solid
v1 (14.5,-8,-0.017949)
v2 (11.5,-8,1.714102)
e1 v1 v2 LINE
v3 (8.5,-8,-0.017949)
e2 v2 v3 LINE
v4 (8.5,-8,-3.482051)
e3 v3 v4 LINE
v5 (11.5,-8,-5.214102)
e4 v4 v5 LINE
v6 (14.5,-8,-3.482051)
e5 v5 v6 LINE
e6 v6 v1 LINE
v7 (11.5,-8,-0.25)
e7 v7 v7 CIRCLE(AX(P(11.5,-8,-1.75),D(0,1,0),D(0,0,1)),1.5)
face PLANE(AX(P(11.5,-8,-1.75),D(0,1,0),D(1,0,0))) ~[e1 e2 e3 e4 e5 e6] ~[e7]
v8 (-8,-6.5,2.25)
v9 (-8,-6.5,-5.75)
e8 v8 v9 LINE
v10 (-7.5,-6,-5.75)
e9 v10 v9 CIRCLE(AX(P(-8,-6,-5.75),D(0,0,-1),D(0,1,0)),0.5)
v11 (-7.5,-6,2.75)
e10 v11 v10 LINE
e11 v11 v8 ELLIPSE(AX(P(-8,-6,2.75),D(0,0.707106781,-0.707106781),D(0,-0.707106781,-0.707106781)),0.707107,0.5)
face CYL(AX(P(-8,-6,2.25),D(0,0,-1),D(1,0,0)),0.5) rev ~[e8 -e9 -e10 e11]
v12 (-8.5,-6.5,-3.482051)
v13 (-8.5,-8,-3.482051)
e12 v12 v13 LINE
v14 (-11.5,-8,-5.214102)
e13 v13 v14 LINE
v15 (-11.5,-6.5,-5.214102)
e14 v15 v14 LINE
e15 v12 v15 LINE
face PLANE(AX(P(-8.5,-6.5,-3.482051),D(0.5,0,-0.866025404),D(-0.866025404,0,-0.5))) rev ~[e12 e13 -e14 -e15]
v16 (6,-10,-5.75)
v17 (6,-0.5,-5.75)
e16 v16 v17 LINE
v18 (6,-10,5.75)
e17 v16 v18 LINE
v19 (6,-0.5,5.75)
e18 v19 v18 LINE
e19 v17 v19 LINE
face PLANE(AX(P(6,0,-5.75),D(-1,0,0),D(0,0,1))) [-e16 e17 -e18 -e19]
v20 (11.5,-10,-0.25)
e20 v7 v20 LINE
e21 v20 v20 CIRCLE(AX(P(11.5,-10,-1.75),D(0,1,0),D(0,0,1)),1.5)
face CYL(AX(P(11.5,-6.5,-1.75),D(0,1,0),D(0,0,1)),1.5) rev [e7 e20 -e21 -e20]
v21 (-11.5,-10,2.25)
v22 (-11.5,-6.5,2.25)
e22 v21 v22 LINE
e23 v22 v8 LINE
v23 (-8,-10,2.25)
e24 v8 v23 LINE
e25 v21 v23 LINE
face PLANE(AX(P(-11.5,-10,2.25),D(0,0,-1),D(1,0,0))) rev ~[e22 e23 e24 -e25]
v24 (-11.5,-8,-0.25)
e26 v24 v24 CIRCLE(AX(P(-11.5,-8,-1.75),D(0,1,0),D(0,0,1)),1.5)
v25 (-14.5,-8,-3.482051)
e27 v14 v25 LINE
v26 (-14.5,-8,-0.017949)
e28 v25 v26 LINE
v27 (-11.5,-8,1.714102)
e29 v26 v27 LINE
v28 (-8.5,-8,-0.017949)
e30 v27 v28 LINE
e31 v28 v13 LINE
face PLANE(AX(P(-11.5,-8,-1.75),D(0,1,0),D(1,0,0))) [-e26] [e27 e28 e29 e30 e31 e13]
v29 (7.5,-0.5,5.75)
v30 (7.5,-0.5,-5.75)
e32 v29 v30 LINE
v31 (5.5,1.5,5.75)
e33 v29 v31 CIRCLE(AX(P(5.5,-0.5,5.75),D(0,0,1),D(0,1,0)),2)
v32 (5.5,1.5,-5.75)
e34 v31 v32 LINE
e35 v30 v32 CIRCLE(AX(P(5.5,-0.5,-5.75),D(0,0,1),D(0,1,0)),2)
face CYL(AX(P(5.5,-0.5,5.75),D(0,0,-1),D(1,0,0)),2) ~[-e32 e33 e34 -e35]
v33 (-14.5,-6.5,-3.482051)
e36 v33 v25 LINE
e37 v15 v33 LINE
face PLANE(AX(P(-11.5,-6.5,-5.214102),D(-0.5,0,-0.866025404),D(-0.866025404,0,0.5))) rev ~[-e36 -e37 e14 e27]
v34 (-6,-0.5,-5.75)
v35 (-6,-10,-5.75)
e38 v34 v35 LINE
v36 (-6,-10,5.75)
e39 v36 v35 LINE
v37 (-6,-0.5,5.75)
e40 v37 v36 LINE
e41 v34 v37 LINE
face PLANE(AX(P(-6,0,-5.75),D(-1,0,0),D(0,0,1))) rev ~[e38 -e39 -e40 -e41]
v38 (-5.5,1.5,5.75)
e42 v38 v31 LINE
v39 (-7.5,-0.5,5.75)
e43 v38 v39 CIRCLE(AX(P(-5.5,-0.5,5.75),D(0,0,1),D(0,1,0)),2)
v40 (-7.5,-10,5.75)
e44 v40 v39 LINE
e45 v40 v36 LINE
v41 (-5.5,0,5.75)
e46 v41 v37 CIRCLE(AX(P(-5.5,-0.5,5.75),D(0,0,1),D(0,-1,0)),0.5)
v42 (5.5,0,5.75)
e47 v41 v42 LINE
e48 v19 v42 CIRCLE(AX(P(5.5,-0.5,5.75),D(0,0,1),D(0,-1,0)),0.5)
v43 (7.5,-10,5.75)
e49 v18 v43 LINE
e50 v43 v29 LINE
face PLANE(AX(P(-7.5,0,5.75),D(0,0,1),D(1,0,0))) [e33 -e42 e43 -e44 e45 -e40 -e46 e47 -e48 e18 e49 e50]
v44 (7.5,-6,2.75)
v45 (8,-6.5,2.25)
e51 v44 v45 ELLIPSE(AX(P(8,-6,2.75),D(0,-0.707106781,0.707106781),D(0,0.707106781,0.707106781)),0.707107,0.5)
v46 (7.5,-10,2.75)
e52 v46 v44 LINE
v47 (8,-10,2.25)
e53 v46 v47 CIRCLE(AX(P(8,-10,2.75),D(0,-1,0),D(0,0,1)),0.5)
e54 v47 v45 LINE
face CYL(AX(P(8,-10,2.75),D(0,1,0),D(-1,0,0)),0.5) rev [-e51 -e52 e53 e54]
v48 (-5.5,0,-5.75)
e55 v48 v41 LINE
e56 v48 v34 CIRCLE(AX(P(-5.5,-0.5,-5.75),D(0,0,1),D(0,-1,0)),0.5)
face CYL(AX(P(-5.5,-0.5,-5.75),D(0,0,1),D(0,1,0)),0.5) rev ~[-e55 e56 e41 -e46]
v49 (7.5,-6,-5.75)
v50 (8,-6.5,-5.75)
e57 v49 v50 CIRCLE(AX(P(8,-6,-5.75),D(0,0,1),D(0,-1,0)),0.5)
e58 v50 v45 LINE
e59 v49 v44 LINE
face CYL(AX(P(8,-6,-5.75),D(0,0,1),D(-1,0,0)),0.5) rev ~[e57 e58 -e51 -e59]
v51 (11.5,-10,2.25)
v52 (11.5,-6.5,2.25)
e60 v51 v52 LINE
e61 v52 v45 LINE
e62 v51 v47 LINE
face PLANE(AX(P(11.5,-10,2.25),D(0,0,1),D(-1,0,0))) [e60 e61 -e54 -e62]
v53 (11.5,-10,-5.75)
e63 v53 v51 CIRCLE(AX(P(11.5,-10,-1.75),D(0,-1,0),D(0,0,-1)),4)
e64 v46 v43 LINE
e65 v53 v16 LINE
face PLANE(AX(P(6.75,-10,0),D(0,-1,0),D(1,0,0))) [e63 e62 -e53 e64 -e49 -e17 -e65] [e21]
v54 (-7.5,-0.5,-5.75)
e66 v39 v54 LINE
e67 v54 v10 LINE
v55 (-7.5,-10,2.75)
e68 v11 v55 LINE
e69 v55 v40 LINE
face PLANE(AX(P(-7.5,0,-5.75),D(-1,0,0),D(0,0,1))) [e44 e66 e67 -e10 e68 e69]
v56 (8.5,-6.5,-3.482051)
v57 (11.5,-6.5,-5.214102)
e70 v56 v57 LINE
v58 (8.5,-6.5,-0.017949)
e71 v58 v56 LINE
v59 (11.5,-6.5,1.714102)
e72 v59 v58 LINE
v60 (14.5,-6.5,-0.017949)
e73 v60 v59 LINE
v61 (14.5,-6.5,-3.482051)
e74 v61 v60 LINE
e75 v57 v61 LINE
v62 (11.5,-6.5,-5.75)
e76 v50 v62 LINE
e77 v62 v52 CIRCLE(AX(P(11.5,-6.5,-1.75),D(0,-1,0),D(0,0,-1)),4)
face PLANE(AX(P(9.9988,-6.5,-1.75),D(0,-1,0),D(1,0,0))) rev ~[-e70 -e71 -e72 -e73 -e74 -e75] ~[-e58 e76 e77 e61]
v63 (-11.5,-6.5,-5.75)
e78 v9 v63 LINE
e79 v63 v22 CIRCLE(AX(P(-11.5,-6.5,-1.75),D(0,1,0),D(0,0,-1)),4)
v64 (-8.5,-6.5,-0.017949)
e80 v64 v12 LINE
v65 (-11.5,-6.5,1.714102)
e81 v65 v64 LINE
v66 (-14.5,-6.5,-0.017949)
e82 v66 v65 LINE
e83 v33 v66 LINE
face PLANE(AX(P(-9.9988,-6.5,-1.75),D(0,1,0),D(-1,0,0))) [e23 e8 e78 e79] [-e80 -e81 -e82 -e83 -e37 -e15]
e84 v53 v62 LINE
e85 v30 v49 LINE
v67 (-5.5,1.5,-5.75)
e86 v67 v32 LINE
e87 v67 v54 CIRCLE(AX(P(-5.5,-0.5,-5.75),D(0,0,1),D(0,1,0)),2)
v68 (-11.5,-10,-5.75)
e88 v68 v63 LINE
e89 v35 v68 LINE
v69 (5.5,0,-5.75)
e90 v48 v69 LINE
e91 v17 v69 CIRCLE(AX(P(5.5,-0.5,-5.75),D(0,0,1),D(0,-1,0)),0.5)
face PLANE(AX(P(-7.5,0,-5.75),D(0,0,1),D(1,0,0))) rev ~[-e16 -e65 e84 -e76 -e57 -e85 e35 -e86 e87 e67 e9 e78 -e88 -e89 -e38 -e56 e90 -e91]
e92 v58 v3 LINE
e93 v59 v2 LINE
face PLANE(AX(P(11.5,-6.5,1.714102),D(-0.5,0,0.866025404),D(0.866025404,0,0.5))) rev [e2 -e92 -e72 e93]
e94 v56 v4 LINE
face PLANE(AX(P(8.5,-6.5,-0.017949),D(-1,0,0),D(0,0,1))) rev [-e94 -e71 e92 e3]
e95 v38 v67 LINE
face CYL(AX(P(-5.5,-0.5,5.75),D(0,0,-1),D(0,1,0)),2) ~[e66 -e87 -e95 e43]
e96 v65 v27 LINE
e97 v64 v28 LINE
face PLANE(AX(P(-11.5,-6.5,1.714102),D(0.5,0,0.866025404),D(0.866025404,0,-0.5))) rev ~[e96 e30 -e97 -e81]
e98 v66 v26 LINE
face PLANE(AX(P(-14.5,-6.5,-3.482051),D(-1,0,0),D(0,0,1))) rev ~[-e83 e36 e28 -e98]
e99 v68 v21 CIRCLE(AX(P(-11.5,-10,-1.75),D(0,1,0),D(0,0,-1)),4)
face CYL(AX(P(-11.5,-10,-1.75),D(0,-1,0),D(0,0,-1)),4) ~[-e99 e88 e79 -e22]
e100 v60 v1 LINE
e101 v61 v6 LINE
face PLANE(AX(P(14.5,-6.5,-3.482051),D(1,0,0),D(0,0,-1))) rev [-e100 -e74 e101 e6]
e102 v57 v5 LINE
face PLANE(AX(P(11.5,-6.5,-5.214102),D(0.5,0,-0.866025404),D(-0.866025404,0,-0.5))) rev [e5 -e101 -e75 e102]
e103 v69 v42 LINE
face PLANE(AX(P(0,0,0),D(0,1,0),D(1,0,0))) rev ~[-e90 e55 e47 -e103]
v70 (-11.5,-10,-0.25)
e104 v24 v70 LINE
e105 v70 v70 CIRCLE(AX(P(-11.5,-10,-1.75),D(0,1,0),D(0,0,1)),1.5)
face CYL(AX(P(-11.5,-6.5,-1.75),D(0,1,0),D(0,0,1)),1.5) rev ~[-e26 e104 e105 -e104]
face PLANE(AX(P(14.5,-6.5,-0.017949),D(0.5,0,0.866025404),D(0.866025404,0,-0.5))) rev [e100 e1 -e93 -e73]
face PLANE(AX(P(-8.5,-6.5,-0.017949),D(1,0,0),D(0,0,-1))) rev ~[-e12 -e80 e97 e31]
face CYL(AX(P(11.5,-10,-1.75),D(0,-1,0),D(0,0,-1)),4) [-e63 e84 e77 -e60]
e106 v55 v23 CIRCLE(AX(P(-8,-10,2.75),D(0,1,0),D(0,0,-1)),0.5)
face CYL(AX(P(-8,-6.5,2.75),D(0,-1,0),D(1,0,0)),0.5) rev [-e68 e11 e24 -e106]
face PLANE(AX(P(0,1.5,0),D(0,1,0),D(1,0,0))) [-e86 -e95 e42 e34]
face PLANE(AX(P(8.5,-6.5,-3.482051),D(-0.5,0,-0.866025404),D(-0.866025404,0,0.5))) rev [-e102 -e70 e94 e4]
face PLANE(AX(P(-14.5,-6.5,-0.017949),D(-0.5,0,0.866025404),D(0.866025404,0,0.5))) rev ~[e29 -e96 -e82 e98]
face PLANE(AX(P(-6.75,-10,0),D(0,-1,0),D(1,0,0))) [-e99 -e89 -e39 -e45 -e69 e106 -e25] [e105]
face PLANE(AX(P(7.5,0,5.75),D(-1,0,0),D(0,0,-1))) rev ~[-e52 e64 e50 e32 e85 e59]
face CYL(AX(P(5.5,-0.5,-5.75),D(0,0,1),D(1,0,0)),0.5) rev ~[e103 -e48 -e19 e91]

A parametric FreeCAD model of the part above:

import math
import FreeCAD as App
import Part
import Sketcher

V = App.Vector
Q = App.Units.Quantity


def edges_at(feature, points):
    """Names of the edges that pass closest to the given points."""
    edges = feature.Shape.Edges
    near = lambda p: min(range(len(edges)), key=lambda i: edges[i].distToShape(Part.Vertex(*p))[0])
    return sorted({f"Edge{near(p) + 1}" for p in points})

doc = App.newDocument("Part")
body = doc.addObject("PartDesign::Body", "Body")

sketch1 = doc.addObject("Sketcher::SketchObject", "Sketch")
body.addObject(sketch1)
sketch1.AttachmentSupport = (doc.XZ_Plane, [""])
sketch1.MapMode = "FlatFace"
sketch1.addGeometry([
    Part.LineSegment(V(-7.5, -5.75, 0), V(-7.5, 5.75, 0)),
    Part.LineSegment(V(-7.5, 5.75, 0), V(7.5, 5.75, 0)),
    Part.LineSegment(V(7.5, 5.75, 0), V(7.5, -5.75, 0)),
    Part.LineSegment(V(7.5, -5.75, 0), V(-7.5, -5.75, 0)),
], False)
sketch1.addConstraint([
    Sketcher.Constraint("Coincident", 0, 2, 1, 1),
    Sketcher.Constraint("Coincident", 1, 2, 2, 1),
    Sketcher.Constraint("Coincident", 2, 2, 3, 1),
    Sketcher.Constraint("Coincident", 3, 2, 0, 1),
    Sketcher.Constraint("Vertical", 0),
    Sketcher.Constraint("Horizontal", 1),
    Sketcher.Constraint("Vertical", 2),
    Sketcher.Constraint("Horizontal", 3),
    Sketcher.Constraint("Symmetric", 0, 2, 2, 2, -1, 1),
    Sketcher.Constraint("DistanceX", 1, 1, 1, 2, Q("15 mm")),
    Sketcher.Constraint("DistanceY", 0, 1, 0, 2, Q("11.5 mm")),
])
pad1 = doc.addObject("PartDesign::Pad", "Pad")
body.addObject(pad1)
pad1.Profile = sketch1
pad1.Length = 1.5
pad1.Reversed = True

sketch2 = doc.addObject("Sketcher::SketchObject", "Sketch001")
body.addObject(sketch2)
sketch2.AttachmentSupport = (doc.XZ_Plane, [""])
sketch2.MapMode = "FlatFace"
sketch2.addGeometry([
    Part.LineSegment(V(-7.5, 5.75, 0), V(-7.5, -5.75, 0)),
    Part.LineSegment(V(-7.5, -5.75, 0), V(-6, -5.75, 0)),
    Part.LineSegment(V(-6, -5.75, 0), V(-6, 5.75, 0)),
    Part.LineSegment(V(-6, 5.75, 0), V(-7.5, 5.75, 0)),
    Part.LineSegment(V(6, 5.75, 0), V(6, -5.75, 0)),
    Part.LineSegment(V(6, -5.75, 0), V(7.5, -5.75, 0)),
    Part.LineSegment(V(7.5, -5.75, 0), V(7.5, 5.75, 0)),
    Part.LineSegment(V(7.5, 5.75, 0), V(6, 5.75, 0)),
], False)
sketch2.addConstraint([
    Sketcher.Constraint("Coincident", 0, 2, 1, 1),
    Sketcher.Constraint("Coincident", 1, 2, 2, 1),
    Sketcher.Constraint("Coincident", 2, 2, 3, 1),
    Sketcher.Constraint("Coincident", 3, 2, 0, 1),
    Sketcher.Constraint("Coincident", 4, 2, 5, 1),
    Sketcher.Constraint("Coincident", 5, 2, 6, 1),
    Sketcher.Constraint("Coincident", 6, 2, 7, 1),
    Sketcher.Constraint("Coincident", 7, 2, 4, 1),
    Sketcher.Constraint("Vertical", 0),
    Sketcher.Constraint("Horizontal", 1),
    Sketcher.Constraint("Vertical", 2),
    Sketcher.Constraint("Horizontal", 3),
    Sketcher.Constraint("Vertical", 4),
    Sketcher.Constraint("Horizontal", 5),
    Sketcher.Constraint("Vertical", 6),
    Sketcher.Constraint("Horizontal", 7),
    Sketcher.Constraint("Symmetric", 2, 2, 4, 2, -1, 1),
    Sketcher.Constraint("Symmetric", 0, 2, 6, 2, -1, 1),
    Sketcher.Constraint("Horizontal", 1, 2, 4, 2),
    Sketcher.Constraint("DistanceX", 1, 1, 1, 2, Q("1.5 mm")),
    Sketcher.Constraint("DistanceY", 0, 2, 0, 1, Q("11.5 mm")),
    Sketcher.Constraint("DistanceX", 1, 2, -1, 1, Q("6 mm")),
])
pad2 = doc.addObject("PartDesign::Pad", "Pad001")
body.addObject(pad2)
pad2.Profile = sketch2
pad2.Length = 10

sketch3 = doc.addObject("Sketcher::SketchObject", "Sketch002")
body.addObject(sketch3)
sketch3.AttachmentSupport = (doc.XZ_Plane, [""])
sketch3.MapMode = "FlatFace"
sketch3.AttachmentOffset = App.Placement(V(0, 0, 10), App.Rotation())
sketch3.addGeometry([
    Part.LineSegment(V(-11.5, -5.75, 0), V(-6, -5.75, 0)),
    Part.LineSegment(V(-6, -5.75, 0), V(-6, 2.25, 0)),
    Part.LineSegment(V(-6, 2.25, 0), V(-11.5, 2.25, 0)),
    Part.ArcOfCircle(Part.Circle(V(-11.5, -1.75, 0), V(0, 0, 1), 4), math.radians(90), math.radians(270)),
    Part.LineSegment(V(6, -5.75, 0), V(11.5, -5.75, 0)),
    Part.ArcOfCircle(Part.Circle(V(11.5, -1.75, 0), V(0, 0, 1), 4), math.radians(-90), math.radians(90)),
    Part.LineSegment(V(11.5, 2.25, 0), V(6, 2.25, 0)),
    Part.LineSegment(V(6, 2.25, 0), V(6, -5.75, 0)),
], False)
sketch3.addConstraint([
    Sketcher.Constraint("Coincident", 0, 2, 1, 1),
    Sketcher.Constraint("Coincident", 1, 2, 2, 1),
    Sketcher.Constraint("Tangent", 2, 2, 3, 1),
    Sketcher.Constraint("Tangent", 3, 2, 0, 1),
    Sketcher.Constraint("Tangent", 4, 2, 5, 1),
    Sketcher.Constraint("Tangent", 5, 2, 6, 1),
    Sketcher.Constraint("Coincident", 6, 2, 7, 1),
    Sketcher.Constraint("Coincident", 7, 2, 4, 1),
    Sketcher.Constraint("Horizontal", 0),
    Sketcher.Constraint("Vertical", 1),
    Sketcher.Constraint("Horizontal", 2),
    Sketcher.Constraint("Horizontal", 4),
    Sketcher.Constraint("Horizontal", 6),
    Sketcher.Constraint("Vertical", 7),
    Sketcher.Constraint("Equal", 3, 5),
    Sketcher.Constraint("Symmetric", 3, 3, 5, 3, -2),
    Sketcher.Constraint("Equal", 2, 4),
    Sketcher.Constraint("Radius", 3, Q("4 mm")),
    Sketcher.Constraint("DistanceX", 0, 1, 0, 2, Q("5.5 mm")),
    Sketcher.Constraint("DistanceX", 0, 2, -1, 1, Q("6 mm")),
    Sketcher.Constraint("DistanceY", 3, 3, -1, 1, Q("1.75 mm")),
])
pad3 = doc.addObject("PartDesign::Pad", "Pad002")
body.addObject(pad3)
pad3.Profile = sketch3
pad3.Length = 3.5
pad3.Reversed = True

sketch4 = doc.addObject("Sketcher::SketchObject", "Sketch003")
body.addObject(sketch4)
sketch4.AttachmentSupport = (doc.XZ_Plane, [""])
sketch4.MapMode = "FlatFace"
sketch4.AttachmentOffset = App.Placement(V(0, 0, 6.5), App.Rotation())
sketch4.addGeometry([
    Part.LineSegment(V(-8.5, -3.482051, 0), V(-11.5, -5.214102, 0)),
    Part.LineSegment(V(-11.5, -5.214102, 0), V(-14.5, -3.482051, 0)),
    Part.LineSegment(V(-14.5, -3.482051, 0), V(-14.5, -0.017949, 0)),
    Part.LineSegment(V(-14.5, -0.017949, 0), V(-11.5, 1.714102, 0)),
    Part.LineSegment(V(-11.5, 1.714102, 0), V(-8.5, -0.017949, 0)),
    Part.LineSegment(V(-8.5, -0.017949, 0), V(-8.5, -3.482051, 0)),
], False)
sketch4.addConstraint([
    Sketcher.Constraint("Coincident", 0, 2, 1, 1),
    Sketcher.Constraint("Coincident", 1, 2, 2, 1),
    Sketcher.Constraint("Coincident", 2, 2, 3, 1),
    Sketcher.Constraint("Coincident", 3, 2, 4, 1),
    Sketcher.Constraint("Coincident", 4, 2, 5, 1),
    Sketcher.Constraint("Coincident", 5, 2, 0, 1),
    Sketcher.Constraint("Vertical", 2),
    Sketcher.Constraint("Vertical", 5),
    Sketcher.Constraint("Parallel", 0, 3),
    Sketcher.Constraint("Parallel", 1, 4),
    Sketcher.Constraint("Horizontal", 2, 2, 4, 2),
    Sketcher.Constraint("Horizontal", 1, 2, 5, 2),
    Sketcher.Constraint("Vertical", 0, 2, 3, 2),
    Sketcher.Constraint("Angle", 0, Q("-150 deg")),
    Sketcher.Constraint("DistanceX", 1, 2, 0, 2, Q("3 mm")),
    Sketcher.Constraint("DistanceX", 0, 2, -1, 1, Q("11.5 mm")),
    Sketcher.Constraint("DistanceY", 2, 1, 2, 2, Q("3.464102 mm")),
    Sketcher.Constraint("DistanceY", 0, 2, -1, 1, Q("5.214102 mm")),
])
pocket1 = doc.addObject("PartDesign::Pocket", "Pocket")
body.addObject(pocket1)
pocket1.Profile = sketch4
pocket1.Length = 1.5
pocket1.Reversed = True

sketch5 = doc.addObject("Sketcher::SketchObject", "Sketch004")
body.addObject(sketch5)
sketch5.AttachmentSupport = (doc.XZ_Plane, [""])
sketch5.MapMode = "FlatFace"
sketch5.AttachmentOffset = App.Placement(V(0, 0, 6.5), App.Rotation())
sketch5.addGeometry(Part.Circle(V(-11.5, -1.75, 0), V(0, 0, 1), 1.5), False)
sketch5.addConstraint([
    Sketcher.Constraint("Diameter", 0, Q("3 mm")),
    Sketcher.Constraint("DistanceX", 0, 3, -1, 1, Q("11.5 mm")),
    Sketcher.Constraint("DistanceY", 0, 3, -1, 1, Q("1.75 mm")),
])
pocket2 = doc.addObject("PartDesign::Pocket", "Pocket001")
body.addObject(pocket2)
pocket2.Profile = sketch5
pocket2.Type = "ThroughAll"
pocket2.Reversed = True
doc.recompute()

mirrored = doc.addObject("PartDesign::Mirrored", "Mirrored")
body.addObject(mirrored)
mirrored.Originals = [pocket1, pocket2]
mirrored.MirrorPlane = (doc.YZ_Plane, [""])
body.Tip = mirrored
doc.recompute()

fillet = doc.addObject("PartDesign::Fillet", "Fillet")
body.addObject(fillet)
fillet.Base = (mirrored, edges_at(mirrored, [(7.5, 1.5, 0), (-7.5, 1.5, 0)]))
fillet.Radius = 2
doc.recompute()

fillet2 = doc.addObject("PartDesign::Fillet", "Fillet001")
body.addObject(fillet2)
fillet2.Base = (fillet, edges_at(fillet, [
    (-6, 0, 0),
    (6, 0, 0),
    (-7.5, -6.5, -1.75),
    (-7.5, -8.25, 2.25),
    (7.5, -8.25, 2.25),
    (7.5, -6.5, -1.75),
]))
fillet2.Radius = 0.5

doc.recompute()
